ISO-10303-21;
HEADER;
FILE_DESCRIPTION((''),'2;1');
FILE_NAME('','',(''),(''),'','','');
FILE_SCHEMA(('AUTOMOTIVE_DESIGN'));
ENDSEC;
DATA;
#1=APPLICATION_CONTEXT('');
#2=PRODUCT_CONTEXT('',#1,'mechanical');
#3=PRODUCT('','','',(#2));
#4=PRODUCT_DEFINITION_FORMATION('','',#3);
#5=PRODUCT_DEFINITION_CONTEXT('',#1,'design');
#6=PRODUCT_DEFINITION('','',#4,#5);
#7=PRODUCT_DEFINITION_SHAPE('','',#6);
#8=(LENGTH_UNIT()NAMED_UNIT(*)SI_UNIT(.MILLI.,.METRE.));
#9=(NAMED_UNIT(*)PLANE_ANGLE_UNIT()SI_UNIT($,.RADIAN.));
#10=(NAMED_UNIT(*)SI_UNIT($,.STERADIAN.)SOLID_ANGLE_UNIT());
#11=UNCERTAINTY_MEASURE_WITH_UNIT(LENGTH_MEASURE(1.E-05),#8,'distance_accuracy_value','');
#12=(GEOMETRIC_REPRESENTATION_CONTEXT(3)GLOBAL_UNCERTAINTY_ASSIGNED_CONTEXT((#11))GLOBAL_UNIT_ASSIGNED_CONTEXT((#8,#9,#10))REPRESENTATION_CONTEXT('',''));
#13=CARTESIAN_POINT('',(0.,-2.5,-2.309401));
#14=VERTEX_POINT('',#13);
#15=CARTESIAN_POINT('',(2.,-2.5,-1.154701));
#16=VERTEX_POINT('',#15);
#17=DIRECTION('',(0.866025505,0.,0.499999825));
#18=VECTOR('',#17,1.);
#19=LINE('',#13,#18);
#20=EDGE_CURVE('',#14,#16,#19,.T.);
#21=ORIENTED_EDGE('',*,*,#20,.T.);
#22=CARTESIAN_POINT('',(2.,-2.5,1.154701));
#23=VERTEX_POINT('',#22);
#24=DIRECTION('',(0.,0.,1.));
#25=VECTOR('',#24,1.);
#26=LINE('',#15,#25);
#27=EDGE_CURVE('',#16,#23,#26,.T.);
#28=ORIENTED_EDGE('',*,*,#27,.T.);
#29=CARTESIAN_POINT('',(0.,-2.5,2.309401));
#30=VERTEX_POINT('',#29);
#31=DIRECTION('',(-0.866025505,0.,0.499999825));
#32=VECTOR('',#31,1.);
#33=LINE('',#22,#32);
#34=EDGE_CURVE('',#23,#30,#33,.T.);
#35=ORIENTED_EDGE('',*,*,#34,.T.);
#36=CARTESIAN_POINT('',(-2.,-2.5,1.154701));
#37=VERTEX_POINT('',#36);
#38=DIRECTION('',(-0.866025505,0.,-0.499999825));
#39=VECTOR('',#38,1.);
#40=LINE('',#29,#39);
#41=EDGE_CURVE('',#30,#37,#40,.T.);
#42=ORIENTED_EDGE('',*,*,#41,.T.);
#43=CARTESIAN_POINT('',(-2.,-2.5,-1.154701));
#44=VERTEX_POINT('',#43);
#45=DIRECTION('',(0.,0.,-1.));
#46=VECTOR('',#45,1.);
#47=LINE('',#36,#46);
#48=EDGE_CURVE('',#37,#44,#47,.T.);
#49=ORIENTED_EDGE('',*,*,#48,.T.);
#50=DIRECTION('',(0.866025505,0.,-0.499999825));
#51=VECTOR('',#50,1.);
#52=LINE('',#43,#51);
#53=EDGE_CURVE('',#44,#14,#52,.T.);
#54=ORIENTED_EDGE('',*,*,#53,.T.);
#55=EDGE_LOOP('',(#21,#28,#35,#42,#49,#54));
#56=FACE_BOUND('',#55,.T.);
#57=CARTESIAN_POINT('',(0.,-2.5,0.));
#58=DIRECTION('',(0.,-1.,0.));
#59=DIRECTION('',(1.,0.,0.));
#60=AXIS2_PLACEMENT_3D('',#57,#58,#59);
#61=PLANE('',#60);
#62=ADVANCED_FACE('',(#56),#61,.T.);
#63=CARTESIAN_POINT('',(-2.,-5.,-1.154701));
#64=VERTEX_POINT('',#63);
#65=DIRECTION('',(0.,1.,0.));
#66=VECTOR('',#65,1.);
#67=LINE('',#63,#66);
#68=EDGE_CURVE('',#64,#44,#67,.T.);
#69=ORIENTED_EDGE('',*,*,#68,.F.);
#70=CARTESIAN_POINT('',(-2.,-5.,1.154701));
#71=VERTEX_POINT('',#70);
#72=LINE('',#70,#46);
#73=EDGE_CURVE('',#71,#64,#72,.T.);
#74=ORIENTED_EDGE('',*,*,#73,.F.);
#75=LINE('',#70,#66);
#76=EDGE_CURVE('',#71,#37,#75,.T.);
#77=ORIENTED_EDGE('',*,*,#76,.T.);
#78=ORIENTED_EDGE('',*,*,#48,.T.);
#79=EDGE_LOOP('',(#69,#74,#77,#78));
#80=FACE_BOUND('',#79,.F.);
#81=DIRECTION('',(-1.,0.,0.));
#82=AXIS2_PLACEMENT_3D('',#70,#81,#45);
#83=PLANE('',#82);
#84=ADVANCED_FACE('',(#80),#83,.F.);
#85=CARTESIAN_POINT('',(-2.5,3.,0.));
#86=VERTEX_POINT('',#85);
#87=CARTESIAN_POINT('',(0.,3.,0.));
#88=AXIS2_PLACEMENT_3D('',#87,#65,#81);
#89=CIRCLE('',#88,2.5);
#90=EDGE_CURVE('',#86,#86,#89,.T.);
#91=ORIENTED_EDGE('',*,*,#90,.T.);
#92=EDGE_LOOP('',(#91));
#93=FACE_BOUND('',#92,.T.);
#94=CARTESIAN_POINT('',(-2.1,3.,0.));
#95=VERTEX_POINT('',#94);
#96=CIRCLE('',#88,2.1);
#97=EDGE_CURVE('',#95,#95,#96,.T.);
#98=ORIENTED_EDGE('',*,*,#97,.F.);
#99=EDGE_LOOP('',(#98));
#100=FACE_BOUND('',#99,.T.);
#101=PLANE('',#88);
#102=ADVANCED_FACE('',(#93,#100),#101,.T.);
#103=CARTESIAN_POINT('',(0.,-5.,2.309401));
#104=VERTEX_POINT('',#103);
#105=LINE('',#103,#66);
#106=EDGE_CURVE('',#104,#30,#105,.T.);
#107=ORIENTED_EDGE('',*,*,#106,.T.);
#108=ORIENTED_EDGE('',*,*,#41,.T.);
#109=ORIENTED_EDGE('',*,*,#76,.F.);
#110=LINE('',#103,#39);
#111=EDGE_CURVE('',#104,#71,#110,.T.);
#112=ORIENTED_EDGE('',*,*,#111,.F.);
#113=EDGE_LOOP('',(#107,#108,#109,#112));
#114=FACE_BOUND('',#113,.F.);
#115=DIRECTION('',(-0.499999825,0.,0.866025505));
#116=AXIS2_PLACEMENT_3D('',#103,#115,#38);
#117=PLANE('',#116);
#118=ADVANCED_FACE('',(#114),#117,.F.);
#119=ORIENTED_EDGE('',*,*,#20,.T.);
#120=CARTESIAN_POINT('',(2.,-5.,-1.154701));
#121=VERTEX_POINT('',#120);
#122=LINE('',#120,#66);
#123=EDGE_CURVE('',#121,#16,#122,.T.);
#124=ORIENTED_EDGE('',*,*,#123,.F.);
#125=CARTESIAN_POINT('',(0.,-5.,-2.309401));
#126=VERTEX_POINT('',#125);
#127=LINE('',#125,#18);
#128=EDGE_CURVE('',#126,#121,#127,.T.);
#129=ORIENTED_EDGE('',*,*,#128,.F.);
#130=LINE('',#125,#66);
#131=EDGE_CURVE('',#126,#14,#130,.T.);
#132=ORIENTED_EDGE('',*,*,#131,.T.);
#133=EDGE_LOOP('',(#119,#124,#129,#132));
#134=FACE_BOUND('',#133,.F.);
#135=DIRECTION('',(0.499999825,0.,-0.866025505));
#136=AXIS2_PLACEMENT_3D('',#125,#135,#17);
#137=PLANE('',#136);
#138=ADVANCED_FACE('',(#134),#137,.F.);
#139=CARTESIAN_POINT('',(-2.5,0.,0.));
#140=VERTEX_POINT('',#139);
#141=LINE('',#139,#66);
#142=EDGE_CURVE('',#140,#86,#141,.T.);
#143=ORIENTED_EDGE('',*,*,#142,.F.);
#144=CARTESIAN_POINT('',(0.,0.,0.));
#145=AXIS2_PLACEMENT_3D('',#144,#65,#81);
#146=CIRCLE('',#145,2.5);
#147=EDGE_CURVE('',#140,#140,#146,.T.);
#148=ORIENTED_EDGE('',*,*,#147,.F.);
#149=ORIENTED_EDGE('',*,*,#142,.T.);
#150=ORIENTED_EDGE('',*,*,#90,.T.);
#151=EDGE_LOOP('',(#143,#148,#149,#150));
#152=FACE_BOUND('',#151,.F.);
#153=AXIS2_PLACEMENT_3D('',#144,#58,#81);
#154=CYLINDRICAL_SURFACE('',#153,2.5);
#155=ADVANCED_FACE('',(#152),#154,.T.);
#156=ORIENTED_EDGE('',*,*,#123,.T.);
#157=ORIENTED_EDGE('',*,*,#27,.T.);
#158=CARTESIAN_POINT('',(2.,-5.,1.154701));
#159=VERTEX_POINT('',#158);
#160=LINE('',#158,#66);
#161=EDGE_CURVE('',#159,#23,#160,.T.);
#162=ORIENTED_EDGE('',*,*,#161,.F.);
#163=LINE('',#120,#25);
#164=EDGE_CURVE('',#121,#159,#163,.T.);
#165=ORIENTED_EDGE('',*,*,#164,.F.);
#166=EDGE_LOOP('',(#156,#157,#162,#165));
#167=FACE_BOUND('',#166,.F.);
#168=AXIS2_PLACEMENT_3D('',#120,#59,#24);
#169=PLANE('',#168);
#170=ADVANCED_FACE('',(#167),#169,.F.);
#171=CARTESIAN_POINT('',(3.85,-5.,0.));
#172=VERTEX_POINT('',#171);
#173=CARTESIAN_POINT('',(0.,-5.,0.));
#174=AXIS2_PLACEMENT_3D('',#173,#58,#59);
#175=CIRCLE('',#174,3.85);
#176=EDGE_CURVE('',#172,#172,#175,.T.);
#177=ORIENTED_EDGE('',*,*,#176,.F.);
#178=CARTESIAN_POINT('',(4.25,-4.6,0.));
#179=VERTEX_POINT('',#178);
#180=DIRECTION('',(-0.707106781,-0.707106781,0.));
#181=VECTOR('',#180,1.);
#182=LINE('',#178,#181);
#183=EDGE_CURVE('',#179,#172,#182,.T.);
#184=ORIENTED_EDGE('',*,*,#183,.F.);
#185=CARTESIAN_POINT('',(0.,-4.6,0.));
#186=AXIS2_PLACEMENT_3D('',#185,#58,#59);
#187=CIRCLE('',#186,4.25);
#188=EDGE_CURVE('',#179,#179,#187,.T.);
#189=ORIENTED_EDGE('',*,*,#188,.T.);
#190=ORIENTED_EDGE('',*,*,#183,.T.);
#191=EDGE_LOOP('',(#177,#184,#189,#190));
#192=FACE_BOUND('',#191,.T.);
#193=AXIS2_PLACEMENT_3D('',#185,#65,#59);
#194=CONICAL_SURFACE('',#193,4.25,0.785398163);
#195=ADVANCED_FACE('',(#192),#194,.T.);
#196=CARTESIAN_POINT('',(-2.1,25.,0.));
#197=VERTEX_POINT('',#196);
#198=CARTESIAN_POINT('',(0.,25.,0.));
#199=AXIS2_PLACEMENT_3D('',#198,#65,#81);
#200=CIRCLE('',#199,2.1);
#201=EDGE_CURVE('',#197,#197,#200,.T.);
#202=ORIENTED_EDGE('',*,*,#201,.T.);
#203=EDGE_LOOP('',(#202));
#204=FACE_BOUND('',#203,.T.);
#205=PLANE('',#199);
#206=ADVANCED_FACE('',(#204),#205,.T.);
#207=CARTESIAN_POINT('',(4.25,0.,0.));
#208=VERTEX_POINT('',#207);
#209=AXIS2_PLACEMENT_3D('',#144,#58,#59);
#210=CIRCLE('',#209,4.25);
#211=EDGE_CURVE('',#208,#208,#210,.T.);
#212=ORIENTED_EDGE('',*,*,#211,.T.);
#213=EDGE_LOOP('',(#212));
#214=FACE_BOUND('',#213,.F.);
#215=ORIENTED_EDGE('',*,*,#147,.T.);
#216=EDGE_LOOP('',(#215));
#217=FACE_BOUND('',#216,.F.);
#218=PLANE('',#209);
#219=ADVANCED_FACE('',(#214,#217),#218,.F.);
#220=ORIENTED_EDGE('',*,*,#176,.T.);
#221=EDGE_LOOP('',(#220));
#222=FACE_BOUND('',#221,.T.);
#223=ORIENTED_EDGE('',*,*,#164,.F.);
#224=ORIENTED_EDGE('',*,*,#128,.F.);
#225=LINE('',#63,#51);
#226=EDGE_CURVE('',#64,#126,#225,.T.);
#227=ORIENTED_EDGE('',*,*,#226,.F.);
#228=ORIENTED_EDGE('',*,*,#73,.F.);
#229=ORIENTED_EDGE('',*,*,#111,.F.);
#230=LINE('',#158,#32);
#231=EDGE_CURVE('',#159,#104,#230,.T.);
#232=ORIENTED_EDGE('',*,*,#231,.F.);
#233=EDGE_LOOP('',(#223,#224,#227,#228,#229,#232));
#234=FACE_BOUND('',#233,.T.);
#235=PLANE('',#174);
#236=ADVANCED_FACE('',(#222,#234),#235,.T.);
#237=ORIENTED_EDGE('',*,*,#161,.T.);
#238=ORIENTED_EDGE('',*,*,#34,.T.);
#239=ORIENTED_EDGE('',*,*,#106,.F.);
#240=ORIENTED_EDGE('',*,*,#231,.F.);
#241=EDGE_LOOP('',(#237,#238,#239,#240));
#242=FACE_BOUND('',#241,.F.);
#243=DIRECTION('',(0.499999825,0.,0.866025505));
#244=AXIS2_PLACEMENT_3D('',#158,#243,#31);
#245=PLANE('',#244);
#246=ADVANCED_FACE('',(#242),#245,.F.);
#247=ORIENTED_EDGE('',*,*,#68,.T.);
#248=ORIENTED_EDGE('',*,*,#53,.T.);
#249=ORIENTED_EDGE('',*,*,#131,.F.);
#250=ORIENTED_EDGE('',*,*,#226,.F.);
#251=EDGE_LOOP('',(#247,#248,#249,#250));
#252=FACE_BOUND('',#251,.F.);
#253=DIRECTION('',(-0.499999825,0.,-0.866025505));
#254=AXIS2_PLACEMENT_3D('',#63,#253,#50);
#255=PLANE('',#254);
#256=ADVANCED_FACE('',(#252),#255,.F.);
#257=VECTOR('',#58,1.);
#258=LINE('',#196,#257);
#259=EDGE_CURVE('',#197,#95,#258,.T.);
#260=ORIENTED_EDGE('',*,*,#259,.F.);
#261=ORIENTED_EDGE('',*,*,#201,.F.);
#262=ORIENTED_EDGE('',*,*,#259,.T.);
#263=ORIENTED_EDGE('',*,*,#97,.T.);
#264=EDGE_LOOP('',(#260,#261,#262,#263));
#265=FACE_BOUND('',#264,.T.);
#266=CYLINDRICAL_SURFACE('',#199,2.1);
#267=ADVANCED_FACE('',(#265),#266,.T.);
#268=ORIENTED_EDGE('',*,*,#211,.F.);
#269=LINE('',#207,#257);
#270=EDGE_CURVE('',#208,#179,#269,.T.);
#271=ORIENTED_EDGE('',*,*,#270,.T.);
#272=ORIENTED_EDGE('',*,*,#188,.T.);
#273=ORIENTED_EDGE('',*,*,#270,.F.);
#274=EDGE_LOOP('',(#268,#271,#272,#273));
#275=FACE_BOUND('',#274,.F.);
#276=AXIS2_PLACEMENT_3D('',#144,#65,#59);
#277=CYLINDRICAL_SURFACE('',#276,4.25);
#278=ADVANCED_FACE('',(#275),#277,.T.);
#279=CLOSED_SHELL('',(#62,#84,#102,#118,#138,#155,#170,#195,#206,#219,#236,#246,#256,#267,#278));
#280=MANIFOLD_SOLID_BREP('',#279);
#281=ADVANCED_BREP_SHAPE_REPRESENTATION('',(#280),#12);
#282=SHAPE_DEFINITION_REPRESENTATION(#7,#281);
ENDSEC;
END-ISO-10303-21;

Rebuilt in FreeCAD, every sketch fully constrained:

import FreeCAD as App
import Part
import Sketcher
Q = App.Units.Quantity


def edges_at(feature, points):
    """Names of the edges that pass closest to the given points."""
    edges = feature.Shape.Edges
    near = lambda p: min(range(len(edges)), key=lambda i: edges[i].distToShape(Part.Vertex(*p))[0])
    return sorted({f"Edge{near(p) + 1}" for p in points})


def add_polygon(sketch, points):
    """Adds a closed chain of lines whose ends are joined by coincident constraints."""
    first, n = sketch.GeometryCount, len(points)
    for a, b in zip(points, points[1:] + points[:1]):
        sketch.addGeometry(Part.LineSegment(App.Vector(*a, 0), App.Vector(*b, 0)), False)
    for i in range(n):
        sketch.addConstraint(Sketcher.Constraint("Coincident", first + i, 2, first + (i + 1) % n, 1))

doc = App.newDocument("Part")
body = doc.addObject("PartDesign::Body", "Body")

# Sketch on XZ plane
sketch1 = body.newObject("Sketcher::SketchObject", "Sketch")
sketch1.AttachmentSupport = (doc.getObject("XZ_Plane"), [""])
sketch1.MapMode = "FlatFace"
sketch1.addGeometry(Part.Circle(App.Vector(0, 0, 0), App.Vector(0, 0, 1), 4.2), False)
sketch1.addConstraint(Sketcher.Constraint("Coincident", 0, 3, -1, 1))
sketch1.addConstraint(Sketcher.Constraint("Diameter", 0, Q("8.5 mm")))
pad1 = body.newObject("PartDesign::Pad", "Pad")
pad1.Profile = sketch1
pad1.Length = 5

# Sketch on XZ plane
sketch2 = body.newObject("Sketcher::SketchObject", "Sketch001")
sketch2.AttachmentSupport = (doc.getObject("XZ_Plane"), [""])
sketch2.MapMode = "FlatFace"
sketch2.addGeometry(Part.Circle(App.Vector(0, 0, 0), App.Vector(0, 0, 1), 2.5), False)
sketch2.addConstraint(Sketcher.Constraint("Coincident", 0, 3, -1, 1))
sketch2.addConstraint(Sketcher.Constraint("Diameter", 0, Q("5 mm")))
pad2 = body.newObject("PartDesign::Pad", "Pad001")
pad2.Profile = sketch2
pad2.Length = 25
pad2.Reversed = True

# Sketch on XZ plane
sketch3 = body.newObject("Sketcher::SketchObject", "Sketch002")
sketch3.AttachmentSupport = (doc.getObject("XZ_Plane"), [""])
sketch3.MapMode = "FlatFace"
sketch3.AttachmentOffset = App.Placement(App.Vector(0, 0, -25), App.Rotation())
sketch3.addGeometry(Part.Circle(App.Vector(0, 0, 0), App.Vector(0, 0, 1), 2.5), False)
sketch3.addGeometry(Part.Circle(App.Vector(0, 0, 0), App.Vector(0, 0, 1), 2.1), False)
sketch3.addConstraint(Sketcher.Constraint("Coincident", 0, 3, -1, 1))
sketch3.addConstraint(Sketcher.Constraint("Coincident", 1, 3, -1, 1))
sketch3.addConstraint(Sketcher.Constraint("Diameter", 0, Q("5 mm")))
sketch3.addConstraint(Sketcher.Constraint("Diameter", 1, Q("4.2 mm")))
pocket1 = body.newObject("PartDesign::Pocket", "Pocket")
pocket1.Profile = sketch3
pocket1.Length = 22
pocket1.Reversed = True

# Sketch on XZ plane
sketch4 = body.newObject("Sketcher::SketchObject", "Sketch003")
sketch4.AttachmentSupport = (doc.getObject("XZ_Plane"), [""])
sketch4.MapMode = "FlatFace"
sketch4.AttachmentOffset = App.Placement(App.Vector(0, 0, 5), App.Rotation())
add_polygon(sketch4, [(0, -2.3), (2, -1.2), (2, 1.2), (0, 2.3), (-2, 1.2), (-2, -1.2)])  # lines 0-5
sketch4.addConstraint(Sketcher.Constraint("Vertical", 1))
sketch4.addConstraint(Sketcher.Constraint("Vertical", 4))
sketch4.addConstraint(Sketcher.Constraint("Symmetric", 0, 2, 3, 2, -1, 1))
sketch4.addConstraint(Sketcher.Constraint("Symmetric", 2, 2, 5, 2, -1, 1))
sketch4.addConstraint(Sketcher.Constraint("PointOnObject", 2, 2, -2))
sketch4.addConstraint(Sketcher.Constraint("Parallel", 2, 5))
sketch4.addConstraint(Sketcher.Constraint("Horizontal", 1, 2, 3, 2))
sketch4.addConstraint(Sketcher.Constraint("Angle", 0, Q("29.999988 deg")))
sketch4.addConstraint(Sketcher.Constraint("DistanceX", -1, 1, 0, 2, Q("2 mm")))
sketch4.addConstraint(Sketcher.Constraint("DistanceY", 1, 1, 1, 2, Q("2.309402 mm")))
pocket2 = body.newObject("PartDesign::Pocket", "Pocket001")
pocket2.Profile = sketch4
pocket2.Length = 2.5
doc.recompute()

chamfer = body.newObject("PartDesign::Chamfer", "Chamfer")
chamfer.Base = (pocket2, edges_at(pocket2, [(-4.25, -5, 0)]))
chamfer.Size = 0.4

doc.recompute()
